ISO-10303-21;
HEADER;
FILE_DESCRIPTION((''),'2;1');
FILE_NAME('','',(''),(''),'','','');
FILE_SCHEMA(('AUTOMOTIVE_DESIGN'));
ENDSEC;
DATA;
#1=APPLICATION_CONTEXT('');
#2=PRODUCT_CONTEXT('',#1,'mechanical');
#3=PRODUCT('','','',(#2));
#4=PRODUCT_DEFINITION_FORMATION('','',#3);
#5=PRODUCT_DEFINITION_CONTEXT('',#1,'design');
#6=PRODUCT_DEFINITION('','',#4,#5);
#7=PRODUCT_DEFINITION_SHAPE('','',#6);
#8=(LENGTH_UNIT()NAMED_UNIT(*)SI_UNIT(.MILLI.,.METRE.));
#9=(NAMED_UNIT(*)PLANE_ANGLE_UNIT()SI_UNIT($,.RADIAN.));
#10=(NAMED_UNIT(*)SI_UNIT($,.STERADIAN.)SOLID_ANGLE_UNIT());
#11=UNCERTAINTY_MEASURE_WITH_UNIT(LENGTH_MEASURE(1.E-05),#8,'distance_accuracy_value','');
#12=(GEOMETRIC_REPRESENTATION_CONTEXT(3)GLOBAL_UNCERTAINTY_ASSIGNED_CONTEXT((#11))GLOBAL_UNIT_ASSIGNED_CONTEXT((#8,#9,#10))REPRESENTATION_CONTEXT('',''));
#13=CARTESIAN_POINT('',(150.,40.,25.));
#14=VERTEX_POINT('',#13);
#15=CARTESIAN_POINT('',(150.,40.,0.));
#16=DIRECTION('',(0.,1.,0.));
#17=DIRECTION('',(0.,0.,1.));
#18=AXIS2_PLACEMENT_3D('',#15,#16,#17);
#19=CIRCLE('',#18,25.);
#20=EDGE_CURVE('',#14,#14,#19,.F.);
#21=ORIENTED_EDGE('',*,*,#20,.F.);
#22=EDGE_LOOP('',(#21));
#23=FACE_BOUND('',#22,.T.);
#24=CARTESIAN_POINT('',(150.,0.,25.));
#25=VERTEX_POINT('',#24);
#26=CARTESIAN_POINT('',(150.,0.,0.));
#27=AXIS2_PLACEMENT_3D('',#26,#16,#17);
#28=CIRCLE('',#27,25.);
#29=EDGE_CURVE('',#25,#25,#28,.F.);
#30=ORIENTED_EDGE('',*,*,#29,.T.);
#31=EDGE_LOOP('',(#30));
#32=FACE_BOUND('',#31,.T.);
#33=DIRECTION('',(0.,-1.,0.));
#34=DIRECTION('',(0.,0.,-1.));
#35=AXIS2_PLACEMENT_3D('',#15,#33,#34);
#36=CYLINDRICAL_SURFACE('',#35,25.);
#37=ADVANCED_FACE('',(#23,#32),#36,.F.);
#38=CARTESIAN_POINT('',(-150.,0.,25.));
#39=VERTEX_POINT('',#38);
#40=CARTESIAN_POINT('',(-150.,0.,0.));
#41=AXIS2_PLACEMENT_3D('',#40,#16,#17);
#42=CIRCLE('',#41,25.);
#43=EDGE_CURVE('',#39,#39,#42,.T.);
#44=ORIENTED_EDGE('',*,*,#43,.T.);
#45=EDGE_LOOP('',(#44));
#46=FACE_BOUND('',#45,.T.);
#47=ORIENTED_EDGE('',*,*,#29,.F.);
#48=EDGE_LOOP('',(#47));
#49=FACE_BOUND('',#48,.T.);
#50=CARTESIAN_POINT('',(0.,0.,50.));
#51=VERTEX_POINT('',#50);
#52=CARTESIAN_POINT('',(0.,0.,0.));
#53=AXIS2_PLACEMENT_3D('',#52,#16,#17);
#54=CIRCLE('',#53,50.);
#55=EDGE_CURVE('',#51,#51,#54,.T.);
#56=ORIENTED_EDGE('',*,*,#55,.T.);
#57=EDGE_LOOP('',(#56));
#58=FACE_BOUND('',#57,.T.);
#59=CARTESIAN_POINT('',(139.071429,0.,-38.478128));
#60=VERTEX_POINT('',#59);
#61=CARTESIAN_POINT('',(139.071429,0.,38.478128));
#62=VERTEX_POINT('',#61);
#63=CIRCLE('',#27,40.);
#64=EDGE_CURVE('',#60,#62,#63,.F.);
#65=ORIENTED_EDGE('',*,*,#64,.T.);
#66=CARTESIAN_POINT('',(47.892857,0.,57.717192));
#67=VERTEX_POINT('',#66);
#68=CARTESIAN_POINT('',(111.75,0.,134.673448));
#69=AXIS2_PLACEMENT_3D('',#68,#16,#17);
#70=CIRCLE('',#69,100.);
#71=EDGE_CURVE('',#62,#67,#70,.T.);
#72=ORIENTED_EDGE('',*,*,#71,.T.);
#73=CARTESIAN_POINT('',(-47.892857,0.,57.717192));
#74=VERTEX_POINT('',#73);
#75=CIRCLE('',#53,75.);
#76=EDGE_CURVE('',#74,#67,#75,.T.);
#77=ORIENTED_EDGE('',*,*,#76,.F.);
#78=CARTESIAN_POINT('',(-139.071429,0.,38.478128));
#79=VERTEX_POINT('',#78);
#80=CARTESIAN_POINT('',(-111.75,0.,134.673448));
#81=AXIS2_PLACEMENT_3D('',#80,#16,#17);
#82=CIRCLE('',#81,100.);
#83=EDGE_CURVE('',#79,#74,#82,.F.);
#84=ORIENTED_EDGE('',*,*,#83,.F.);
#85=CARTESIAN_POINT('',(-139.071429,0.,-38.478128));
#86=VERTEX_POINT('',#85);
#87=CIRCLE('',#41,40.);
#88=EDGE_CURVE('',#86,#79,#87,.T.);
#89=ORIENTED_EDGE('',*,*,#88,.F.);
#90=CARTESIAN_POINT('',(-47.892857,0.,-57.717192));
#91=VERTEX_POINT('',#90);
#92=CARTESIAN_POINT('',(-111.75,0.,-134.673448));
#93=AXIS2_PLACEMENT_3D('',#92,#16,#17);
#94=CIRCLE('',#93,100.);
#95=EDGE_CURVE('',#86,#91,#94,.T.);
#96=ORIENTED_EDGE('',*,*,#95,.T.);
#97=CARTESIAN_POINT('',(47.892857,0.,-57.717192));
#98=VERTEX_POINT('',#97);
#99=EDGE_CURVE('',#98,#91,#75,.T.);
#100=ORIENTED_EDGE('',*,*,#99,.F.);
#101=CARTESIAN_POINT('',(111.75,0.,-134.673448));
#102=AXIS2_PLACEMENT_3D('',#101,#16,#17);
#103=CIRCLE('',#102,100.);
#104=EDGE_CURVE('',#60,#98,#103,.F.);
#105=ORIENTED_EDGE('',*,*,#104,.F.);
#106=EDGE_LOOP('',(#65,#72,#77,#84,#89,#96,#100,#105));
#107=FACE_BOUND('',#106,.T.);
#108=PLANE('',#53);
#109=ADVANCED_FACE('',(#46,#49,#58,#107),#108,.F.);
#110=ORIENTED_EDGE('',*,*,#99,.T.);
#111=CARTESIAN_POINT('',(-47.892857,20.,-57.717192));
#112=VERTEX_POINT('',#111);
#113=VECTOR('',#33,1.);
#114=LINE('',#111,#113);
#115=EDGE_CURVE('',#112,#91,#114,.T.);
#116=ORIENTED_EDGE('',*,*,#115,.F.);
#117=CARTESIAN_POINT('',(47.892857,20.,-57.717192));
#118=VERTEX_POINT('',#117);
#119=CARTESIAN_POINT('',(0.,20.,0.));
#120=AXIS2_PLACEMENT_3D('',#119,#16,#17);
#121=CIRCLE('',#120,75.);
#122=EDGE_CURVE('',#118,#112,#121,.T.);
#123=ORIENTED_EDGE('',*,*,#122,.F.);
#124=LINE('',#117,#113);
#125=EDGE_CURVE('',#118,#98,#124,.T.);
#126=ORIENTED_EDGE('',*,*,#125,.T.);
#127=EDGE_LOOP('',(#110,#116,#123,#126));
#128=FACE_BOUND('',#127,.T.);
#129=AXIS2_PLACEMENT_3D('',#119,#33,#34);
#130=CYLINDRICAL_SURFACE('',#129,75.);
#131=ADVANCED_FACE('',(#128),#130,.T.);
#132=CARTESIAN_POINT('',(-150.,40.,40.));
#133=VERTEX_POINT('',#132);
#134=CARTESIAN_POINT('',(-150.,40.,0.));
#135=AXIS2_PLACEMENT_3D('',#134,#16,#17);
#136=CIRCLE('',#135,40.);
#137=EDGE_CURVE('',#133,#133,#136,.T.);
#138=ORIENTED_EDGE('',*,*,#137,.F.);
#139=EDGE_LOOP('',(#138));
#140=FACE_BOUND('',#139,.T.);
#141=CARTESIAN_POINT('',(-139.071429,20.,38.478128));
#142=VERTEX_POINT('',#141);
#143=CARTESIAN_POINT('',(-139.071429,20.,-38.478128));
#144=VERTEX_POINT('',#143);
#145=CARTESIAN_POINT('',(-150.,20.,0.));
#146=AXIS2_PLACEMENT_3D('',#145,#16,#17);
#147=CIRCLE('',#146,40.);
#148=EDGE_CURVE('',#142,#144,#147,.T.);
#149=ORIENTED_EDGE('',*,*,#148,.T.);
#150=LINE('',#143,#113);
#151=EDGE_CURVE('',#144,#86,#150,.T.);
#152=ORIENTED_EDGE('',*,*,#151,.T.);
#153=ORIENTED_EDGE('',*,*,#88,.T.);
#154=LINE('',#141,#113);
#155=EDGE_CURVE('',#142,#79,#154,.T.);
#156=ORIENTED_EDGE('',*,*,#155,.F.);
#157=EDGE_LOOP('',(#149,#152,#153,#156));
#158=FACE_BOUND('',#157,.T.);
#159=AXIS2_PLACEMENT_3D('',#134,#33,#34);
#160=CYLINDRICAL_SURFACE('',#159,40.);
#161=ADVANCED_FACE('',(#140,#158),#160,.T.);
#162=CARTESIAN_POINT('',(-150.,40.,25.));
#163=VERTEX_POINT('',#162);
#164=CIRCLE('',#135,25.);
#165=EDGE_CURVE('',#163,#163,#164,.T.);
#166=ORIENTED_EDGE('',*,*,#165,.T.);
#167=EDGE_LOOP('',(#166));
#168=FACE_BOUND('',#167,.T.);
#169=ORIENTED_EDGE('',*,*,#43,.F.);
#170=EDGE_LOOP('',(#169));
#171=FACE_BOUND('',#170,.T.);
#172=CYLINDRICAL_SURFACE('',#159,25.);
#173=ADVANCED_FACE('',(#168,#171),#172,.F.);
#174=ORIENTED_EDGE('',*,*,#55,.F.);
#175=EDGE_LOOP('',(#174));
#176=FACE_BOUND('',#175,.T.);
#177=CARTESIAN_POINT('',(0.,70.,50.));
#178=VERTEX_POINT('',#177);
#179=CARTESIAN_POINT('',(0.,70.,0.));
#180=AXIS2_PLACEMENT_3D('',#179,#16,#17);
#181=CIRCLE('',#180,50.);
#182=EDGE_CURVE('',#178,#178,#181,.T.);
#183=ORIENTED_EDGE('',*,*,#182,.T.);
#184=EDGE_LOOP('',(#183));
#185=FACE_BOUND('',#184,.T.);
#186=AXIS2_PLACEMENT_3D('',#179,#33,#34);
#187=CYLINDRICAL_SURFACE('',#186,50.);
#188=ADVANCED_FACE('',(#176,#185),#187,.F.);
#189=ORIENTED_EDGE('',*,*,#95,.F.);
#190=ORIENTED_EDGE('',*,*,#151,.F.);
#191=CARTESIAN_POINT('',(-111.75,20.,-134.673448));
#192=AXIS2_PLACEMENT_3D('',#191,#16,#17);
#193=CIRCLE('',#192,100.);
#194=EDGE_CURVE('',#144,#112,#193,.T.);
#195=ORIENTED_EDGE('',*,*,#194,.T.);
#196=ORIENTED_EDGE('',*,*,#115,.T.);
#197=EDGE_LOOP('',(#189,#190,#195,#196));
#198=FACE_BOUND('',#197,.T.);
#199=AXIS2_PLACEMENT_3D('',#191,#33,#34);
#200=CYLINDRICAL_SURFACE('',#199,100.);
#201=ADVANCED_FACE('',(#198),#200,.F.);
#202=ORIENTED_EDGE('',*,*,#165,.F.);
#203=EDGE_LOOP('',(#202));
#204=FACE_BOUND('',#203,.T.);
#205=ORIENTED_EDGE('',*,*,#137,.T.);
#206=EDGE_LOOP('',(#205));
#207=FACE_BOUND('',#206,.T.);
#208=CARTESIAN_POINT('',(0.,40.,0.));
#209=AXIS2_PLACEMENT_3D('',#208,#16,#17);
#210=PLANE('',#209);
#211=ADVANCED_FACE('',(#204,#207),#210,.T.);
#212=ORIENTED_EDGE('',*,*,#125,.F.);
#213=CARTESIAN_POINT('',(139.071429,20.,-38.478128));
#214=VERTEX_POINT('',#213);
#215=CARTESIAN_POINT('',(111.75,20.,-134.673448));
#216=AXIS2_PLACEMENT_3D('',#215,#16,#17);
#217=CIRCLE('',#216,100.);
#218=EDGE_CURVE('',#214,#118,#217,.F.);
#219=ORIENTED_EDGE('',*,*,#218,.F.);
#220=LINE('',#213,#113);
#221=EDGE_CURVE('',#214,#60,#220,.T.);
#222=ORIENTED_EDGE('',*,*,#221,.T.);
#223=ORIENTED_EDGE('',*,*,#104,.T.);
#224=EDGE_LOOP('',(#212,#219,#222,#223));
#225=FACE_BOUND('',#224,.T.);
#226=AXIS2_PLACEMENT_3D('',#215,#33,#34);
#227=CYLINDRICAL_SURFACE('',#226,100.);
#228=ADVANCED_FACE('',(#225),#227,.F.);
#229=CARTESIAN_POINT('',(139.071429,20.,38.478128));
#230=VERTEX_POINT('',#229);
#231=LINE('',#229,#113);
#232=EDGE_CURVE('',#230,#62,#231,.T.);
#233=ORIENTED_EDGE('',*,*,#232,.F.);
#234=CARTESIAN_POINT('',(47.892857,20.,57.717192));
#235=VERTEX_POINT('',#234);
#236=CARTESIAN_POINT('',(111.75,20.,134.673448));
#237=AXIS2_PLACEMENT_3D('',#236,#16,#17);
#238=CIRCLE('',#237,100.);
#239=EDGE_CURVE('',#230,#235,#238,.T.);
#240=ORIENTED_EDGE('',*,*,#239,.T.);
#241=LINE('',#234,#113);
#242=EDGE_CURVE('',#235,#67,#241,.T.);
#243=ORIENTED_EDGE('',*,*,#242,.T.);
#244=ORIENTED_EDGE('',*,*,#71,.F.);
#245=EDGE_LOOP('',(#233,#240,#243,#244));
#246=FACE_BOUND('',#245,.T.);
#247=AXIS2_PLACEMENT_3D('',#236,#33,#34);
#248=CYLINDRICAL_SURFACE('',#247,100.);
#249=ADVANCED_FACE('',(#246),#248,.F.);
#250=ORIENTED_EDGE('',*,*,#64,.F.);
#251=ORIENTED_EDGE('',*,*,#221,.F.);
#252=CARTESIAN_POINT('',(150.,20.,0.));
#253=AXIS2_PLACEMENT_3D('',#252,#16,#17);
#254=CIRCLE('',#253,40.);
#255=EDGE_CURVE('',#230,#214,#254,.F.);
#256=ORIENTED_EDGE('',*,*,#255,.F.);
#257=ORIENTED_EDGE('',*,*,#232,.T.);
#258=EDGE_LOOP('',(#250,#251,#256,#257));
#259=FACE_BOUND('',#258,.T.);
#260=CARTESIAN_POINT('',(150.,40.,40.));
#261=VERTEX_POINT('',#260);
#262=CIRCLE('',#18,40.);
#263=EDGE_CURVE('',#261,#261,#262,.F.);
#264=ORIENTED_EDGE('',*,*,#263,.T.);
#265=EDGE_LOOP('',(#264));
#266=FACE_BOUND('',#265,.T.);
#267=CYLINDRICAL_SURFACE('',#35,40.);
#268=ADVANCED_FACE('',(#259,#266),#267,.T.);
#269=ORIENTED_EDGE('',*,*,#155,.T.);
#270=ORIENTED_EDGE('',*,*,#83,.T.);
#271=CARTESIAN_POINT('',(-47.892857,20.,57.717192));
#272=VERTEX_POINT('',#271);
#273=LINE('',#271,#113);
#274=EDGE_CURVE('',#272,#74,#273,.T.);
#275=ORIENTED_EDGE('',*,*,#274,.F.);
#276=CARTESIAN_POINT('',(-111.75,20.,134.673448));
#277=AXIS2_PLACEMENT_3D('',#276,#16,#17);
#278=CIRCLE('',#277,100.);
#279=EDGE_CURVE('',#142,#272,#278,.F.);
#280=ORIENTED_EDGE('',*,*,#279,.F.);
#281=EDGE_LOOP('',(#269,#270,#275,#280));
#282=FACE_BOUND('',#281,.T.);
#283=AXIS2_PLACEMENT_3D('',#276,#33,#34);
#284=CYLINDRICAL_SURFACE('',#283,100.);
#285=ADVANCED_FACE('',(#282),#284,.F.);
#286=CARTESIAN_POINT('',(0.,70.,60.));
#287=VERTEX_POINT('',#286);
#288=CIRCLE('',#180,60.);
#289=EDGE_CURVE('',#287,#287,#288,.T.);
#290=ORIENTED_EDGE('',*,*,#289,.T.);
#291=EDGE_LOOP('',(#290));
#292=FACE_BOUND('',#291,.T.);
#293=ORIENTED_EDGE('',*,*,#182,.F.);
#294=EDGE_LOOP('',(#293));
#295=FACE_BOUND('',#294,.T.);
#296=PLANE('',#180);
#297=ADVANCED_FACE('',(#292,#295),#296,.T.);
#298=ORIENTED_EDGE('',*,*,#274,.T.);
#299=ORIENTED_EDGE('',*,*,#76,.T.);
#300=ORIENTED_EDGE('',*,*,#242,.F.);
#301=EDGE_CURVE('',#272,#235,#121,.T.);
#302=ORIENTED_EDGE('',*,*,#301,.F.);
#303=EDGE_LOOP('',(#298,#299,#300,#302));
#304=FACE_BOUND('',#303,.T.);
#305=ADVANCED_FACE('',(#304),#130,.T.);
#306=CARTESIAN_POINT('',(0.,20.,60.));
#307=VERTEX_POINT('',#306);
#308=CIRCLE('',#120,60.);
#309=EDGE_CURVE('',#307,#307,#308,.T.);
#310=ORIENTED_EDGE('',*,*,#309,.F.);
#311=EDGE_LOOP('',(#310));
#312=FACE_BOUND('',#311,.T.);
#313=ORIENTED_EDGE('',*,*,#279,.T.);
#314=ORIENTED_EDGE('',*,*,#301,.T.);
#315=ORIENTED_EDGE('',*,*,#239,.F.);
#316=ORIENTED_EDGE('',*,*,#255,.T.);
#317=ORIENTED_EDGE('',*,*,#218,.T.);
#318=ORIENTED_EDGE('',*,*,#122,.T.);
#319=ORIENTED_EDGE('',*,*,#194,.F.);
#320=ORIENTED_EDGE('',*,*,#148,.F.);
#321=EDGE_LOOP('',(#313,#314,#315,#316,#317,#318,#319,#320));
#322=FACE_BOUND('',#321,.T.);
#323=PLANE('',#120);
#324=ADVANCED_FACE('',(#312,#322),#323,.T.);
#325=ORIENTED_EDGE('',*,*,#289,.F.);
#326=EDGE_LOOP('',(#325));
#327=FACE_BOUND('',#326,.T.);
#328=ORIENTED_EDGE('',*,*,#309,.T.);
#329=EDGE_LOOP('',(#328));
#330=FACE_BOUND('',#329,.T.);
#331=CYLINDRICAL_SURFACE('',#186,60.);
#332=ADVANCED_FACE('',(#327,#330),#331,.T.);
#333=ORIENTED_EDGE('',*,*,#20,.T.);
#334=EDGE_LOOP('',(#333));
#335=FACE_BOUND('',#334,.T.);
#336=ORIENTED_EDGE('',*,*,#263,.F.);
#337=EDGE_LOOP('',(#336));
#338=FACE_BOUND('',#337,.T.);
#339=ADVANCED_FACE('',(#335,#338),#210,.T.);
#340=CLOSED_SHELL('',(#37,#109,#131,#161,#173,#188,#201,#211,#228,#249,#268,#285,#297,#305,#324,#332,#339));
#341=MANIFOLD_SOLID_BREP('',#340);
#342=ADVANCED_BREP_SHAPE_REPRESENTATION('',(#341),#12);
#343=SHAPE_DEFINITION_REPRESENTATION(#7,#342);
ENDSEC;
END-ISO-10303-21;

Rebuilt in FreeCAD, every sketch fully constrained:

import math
import FreeCAD as App
import Part
import Sketcher
from FreeCAD import Vector

doc = App.newDocument("Part")
params = doc.addObject("Spreadsheet::Sheet", "Params")
for row, (alias, value) in enumerate([
    ("sketch1_radius", "75 mm"),
    ("sketch1_radius2", "100 mm"),
    ("sketch1_radius3", "40 mm"),
    ("sketch1_radius4", "60 mm"),
    ("pad1_length", "20 mm"),
    ("sketch2_diameter", "80 mm"),
    ("sketch2_diameter2", "50 mm"),
    ("pad2_length", "40 mm"),
    ("sketch3_radius", "60 mm"),
    ("sketch3_radius2", "50 mm"),
    ("pad3_length", "70 mm"),
], start=1):
    params.set(f"A{row}", alias)
    params.set(f"B{row}", "=" + value)
    params.setAlias(f"B{row}", alias)

body = doc.addObject("PartDesign::Body", "Body")

# Sketch on XZ plane
sketch1 = body.newObject("Sketcher::SketchObject", "Sketch")
sketch1.AttachmentSupport = (doc.getObject("XZ_Plane"), [""])
sketch1.MapMode = "FlatFace"
sketch1.addGeometry([
    Part.ArcOfCircle(Part.Circle(Vector(0, 0, 0), Vector(0, 0, 1), 75), math.radians(90), math.radians(130)),  # 0
    Part.ArcOfCircle(Part.Circle(Vector(0, 0, 0), Vector(0, 0, 1), 75), math.radians(50), math.radians(90)),  # 1
    Part.ArcOfCircle(Part.Circle(Vector(112, 135, 0), Vector(0, 0, 1), 100), math.radians(-130), math.radians(-74)),  # 2
    Part.ArcOfCircle(Part.Circle(Vector(150, 0, 0), Vector(0, 0, 1), 40), math.radians(106), math.radians(254)),  # 3
    Part.ArcOfCircle(Part.Circle(Vector(112, -135, 0), Vector(0, 0, 1), 100), math.radians(74), math.radians(130)),  # 4
    Part.ArcOfCircle(Part.Circle(Vector(0, 0, 0), Vector(0, 0, 1), 75), math.radians(-90), math.radians(-50)),  # 5
    Part.ArcOfCircle(Part.Circle(Vector(0, 0, 0), Vector(0, 0, 1), 75), math.radians(-130), math.radians(-90)),  # 6
    Part.ArcOfCircle(Part.Circle(Vector(-112, -135, 0), Vector(0, 0, 1), 100), math.radians(50), math.radians(106)),  # 7
    Part.ArcOfCircle(Part.Circle(Vector(-150, 0, 0), Vector(0, 0, 1), 40), math.radians(-74), math.radians(0)),  # 8
    Part.ArcOfCircle(Part.Circle(Vector(-150, 0, 0), Vector(0, 0, 1), 40), math.radians(0), math.radians(74)),  # 9
    Part.ArcOfCircle(Part.Circle(Vector(-112, 135, 0), Vector(0, 0, 1), 100), math.radians(-106), math.radians(-50)),  # 10
    Part.ArcOfCircle(Part.Circle(Vector(0, 0, 0), Vector(0, 0, 1), 60), math.radians(90), math.radians(270)),  # 11
    Part.ArcOfCircle(Part.Circle(Vector(0, 0, 0), Vector(0, 0, 1), 60), math.radians(-90), math.radians(0)),  # 12
    Part.ArcOfCircle(Part.Circle(Vector(0, 0, 0), Vector(0, 0, 1), 60), math.radians(0), math.radians(90)),  # 13
], False)
sketch1.addConstraint([
    Sketcher.Constraint("Tangent", 0, 1, 1, 2),
    Sketcher.Constraint("Tangent", 1, 1, 2, 1),
    Sketcher.Constraint("Tangent", 2, 2, 3, 1),
    Sketcher.Constraint("Tangent", 3, 2, 4, 1),
    Sketcher.Constraint("Tangent", 4, 2, 5, 2),
    Sketcher.Constraint("Tangent", 5, 1, 6, 2),
    Sketcher.Constraint("Tangent", 6, 1, 7, 1),
    Sketcher.Constraint("Tangent", 7, 2, 8, 1),
    Sketcher.Constraint("Tangent", 8, 2, 9, 1),
    Sketcher.Constraint("Tangent", 9, 2, 10, 1),
    Sketcher.Constraint("Tangent", 10, 2, 0, 2),
    Sketcher.Constraint("Tangent", 11, 2, 12, 1),
    Sketcher.Constraint("Tangent", 12, 2, 13, 1),
    Sketcher.Constraint("Tangent", 13, 2, 11, 1),
    Sketcher.Constraint("Coincident", 0, 3, -1, 1),
    Sketcher.Constraint("Coincident", 5, 3, -1, 1),
    Sketcher.Constraint("Coincident", 11, 3, -1, 1),
    Sketcher.Constraint("Equal", 0, 1),
    Sketcher.Constraint("Equal", 2, 4),
    Sketcher.Constraint("Equal", 1, 5),
    Sketcher.Constraint("Equal", 5, 6),
    Sketcher.Constraint("Equal", 4, 7),
    Sketcher.Constraint("Equal", 3, 8),
    Sketcher.Constraint("Equal", 8, 9),
    Sketcher.Constraint("Equal", 7, 10),
    Sketcher.Constraint("Symmetric", 3, 3, 8, 3, -1, 1),
    Sketcher.Constraint("PointOnObject", 3, 3, -1),
    Sketcher.Constraint("PointOnObject", 0, 1, -2),
    Sketcher.Constraint("PointOnObject", 5, 1, -2),
    Sketcher.Constraint("PointOnObject", 8, 2, -1),
    Sketcher.Constraint("PointOnObject", 11, 2, -2),
    Sketcher.Constraint("PointOnObject", 12, 2, -1),
    Sketcher.Constraint("PointOnObject", 13, 2, -2),
    Sketcher.Constraint("Radius", 0, 75.0),
    Sketcher.Constraint("Radius", 2, 100.0),
    Sketcher.Constraint("Radius", 3, 40.0),
    Sketcher.Constraint("Radius", 11, 60.0),
    Sketcher.Constraint("DistanceX", -1, 1, 3, 3, 150.0),
])
sketch1.setExpression("Constraints[33]", "Params.sketch1_radius")
sketch1.setExpression("Constraints[34]", "Params.sketch1_radius2")
sketch1.setExpression("Constraints[35]", "Params.sketch1_radius3")
sketch1.setExpression("Constraints[36]", "Params.sketch1_radius4")
pad1 = body.newObject("PartDesign::Pad", "Pad")
pad1.Profile = sketch1
pad1.setExpression("Length", "Params.pad1_length")
pad1.Reversed = True

# Sketch on XZ plane
sketch2 = body.newObject("Sketcher::SketchObject", "Sketch001")
sketch2.AttachmentSupport = (doc.getObject("XZ_Plane"), [""])
sketch2.MapMode = "FlatFace"
sketch2.addGeometry([
    Part.Circle(Vector(-150, 0, 0), Vector(0, 0, 1), 40),
    Part.Circle(Vector(-150, 0, 0), Vector(0, 0, 1), 25),
    Part.Circle(Vector(150, 0, 0), Vector(0, 0, 1), 40),
    Part.Circle(Vector(150, 0, 0), Vector(0, 0, 1), 25),
], False)
sketch2.addConstraint([
    Sketcher.Constraint("Coincident", 1, 3, 0, 3),
    Sketcher.Constraint("Coincident", 3, 3, 2, 3),
    Sketcher.Constraint("Equal", 0, 2),
    Sketcher.Constraint("Equal", 1, 3),
    Sketcher.Constraint("Symmetric", 0, 3, 2, 3, -1, 1),
    Sketcher.Constraint("PointOnObject", 0, 3, -1),
    Sketcher.Constraint("Diameter", 0, 80.0),
    Sketcher.Constraint("Diameter", 1, 50.0),
    Sketcher.Constraint("DistanceX", 0, 3, -1, 1, 150.0),
])
sketch2.setExpression("Constraints[6]", "Params.sketch2_diameter")
sketch2.setExpression("Constraints[7]", "Params.sketch2_diameter2")
pad2 = body.newObject("PartDesign::Pad", "Pad001")
pad2.Profile = sketch2
pad2.setExpression("Length", "Params.pad2_length")
pad2.Reversed = True

# Sketch on XZ plane
sketch3 = body.newObject("Sketcher::SketchObject", "Sketch002")
sketch3.AttachmentSupport = (doc.getObject("XZ_Plane"), [""])
sketch3.MapMode = "FlatFace"
sketch3.addGeometry([
    Part.ArcOfCircle(Part.Circle(Vector(0, 0, 0), Vector(0, 0, 1), 60), math.radians(90), math.radians(270)),  # 0
    Part.ArcOfCircle(Part.Circle(Vector(0, 0, 0), Vector(0, 0, 1), 60), math.radians(0), math.radians(90)),  # 1
    Part.ArcOfCircle(Part.Circle(Vector(0, 0, 0), Vector(0, 0, 1), 60), math.radians(-90), math.radians(0)),  # 2
    Part.ArcOfCircle(Part.Circle(Vector(0, 0, 0), Vector(0, 0, 1), 50), math.radians(90), math.radians(270)),  # 3
    Part.ArcOfCircle(Part.Circle(Vector(0, 0, 0), Vector(0, 0, 1), 50), math.radians(-90), math.radians(0)),  # 4
    Part.ArcOfCircle(Part.Circle(Vector(0, 0, 0), Vector(0, 0, 1), 50), math.radians(0), math.radians(90)),  # 5
], False)
sketch3.addConstraint([
    Sketcher.Constraint("Tangent", 0, 1, 1, 2),
    Sketcher.Constraint("Tangent", 1, 1, 2, 2),
    Sketcher.Constraint("Tangent", 2, 1, 0, 2),
    Sketcher.Constraint("Tangent", 3, 2, 4, 1),
    Sketcher.Constraint("Tangent", 4, 2, 5, 1),
    Sketcher.Constraint("Tangent", 5, 2, 3, 1),
    Sketcher.Constraint("Coincident", 0, 3, -1, 1),
    Sketcher.Constraint("Coincident", 3, 3, -1, 1),
    Sketcher.Constraint("PointOnObject", 0, 1, -2),
    Sketcher.Constraint("PointOnObject", 1, 1, -1),
    Sketcher.Constraint("PointOnObject", 2, 1, -2),
    Sketcher.Constraint("PointOnObject", 3, 2, -2),
    Sketcher.Constraint("PointOnObject", 4, 2, -1),
    Sketcher.Constraint("PointOnObject", 5, 2, -2),
    Sketcher.Constraint("Radius", 0, 60.0),
    Sketcher.Constraint("Radius", 3, 50.0),
])
sketch3.setExpression("Constraints[14]", "Params.sketch3_radius")
sketch3.setExpression("Constraints[15]", "Params.sketch3_radius2")
pad3 = body.newObject("PartDesign::Pad", "Pad002")
pad3.Profile = sketch3
pad3.setExpression("Length", "Params.pad3_length")
pad3.Reversed = True

doc.recompute()
